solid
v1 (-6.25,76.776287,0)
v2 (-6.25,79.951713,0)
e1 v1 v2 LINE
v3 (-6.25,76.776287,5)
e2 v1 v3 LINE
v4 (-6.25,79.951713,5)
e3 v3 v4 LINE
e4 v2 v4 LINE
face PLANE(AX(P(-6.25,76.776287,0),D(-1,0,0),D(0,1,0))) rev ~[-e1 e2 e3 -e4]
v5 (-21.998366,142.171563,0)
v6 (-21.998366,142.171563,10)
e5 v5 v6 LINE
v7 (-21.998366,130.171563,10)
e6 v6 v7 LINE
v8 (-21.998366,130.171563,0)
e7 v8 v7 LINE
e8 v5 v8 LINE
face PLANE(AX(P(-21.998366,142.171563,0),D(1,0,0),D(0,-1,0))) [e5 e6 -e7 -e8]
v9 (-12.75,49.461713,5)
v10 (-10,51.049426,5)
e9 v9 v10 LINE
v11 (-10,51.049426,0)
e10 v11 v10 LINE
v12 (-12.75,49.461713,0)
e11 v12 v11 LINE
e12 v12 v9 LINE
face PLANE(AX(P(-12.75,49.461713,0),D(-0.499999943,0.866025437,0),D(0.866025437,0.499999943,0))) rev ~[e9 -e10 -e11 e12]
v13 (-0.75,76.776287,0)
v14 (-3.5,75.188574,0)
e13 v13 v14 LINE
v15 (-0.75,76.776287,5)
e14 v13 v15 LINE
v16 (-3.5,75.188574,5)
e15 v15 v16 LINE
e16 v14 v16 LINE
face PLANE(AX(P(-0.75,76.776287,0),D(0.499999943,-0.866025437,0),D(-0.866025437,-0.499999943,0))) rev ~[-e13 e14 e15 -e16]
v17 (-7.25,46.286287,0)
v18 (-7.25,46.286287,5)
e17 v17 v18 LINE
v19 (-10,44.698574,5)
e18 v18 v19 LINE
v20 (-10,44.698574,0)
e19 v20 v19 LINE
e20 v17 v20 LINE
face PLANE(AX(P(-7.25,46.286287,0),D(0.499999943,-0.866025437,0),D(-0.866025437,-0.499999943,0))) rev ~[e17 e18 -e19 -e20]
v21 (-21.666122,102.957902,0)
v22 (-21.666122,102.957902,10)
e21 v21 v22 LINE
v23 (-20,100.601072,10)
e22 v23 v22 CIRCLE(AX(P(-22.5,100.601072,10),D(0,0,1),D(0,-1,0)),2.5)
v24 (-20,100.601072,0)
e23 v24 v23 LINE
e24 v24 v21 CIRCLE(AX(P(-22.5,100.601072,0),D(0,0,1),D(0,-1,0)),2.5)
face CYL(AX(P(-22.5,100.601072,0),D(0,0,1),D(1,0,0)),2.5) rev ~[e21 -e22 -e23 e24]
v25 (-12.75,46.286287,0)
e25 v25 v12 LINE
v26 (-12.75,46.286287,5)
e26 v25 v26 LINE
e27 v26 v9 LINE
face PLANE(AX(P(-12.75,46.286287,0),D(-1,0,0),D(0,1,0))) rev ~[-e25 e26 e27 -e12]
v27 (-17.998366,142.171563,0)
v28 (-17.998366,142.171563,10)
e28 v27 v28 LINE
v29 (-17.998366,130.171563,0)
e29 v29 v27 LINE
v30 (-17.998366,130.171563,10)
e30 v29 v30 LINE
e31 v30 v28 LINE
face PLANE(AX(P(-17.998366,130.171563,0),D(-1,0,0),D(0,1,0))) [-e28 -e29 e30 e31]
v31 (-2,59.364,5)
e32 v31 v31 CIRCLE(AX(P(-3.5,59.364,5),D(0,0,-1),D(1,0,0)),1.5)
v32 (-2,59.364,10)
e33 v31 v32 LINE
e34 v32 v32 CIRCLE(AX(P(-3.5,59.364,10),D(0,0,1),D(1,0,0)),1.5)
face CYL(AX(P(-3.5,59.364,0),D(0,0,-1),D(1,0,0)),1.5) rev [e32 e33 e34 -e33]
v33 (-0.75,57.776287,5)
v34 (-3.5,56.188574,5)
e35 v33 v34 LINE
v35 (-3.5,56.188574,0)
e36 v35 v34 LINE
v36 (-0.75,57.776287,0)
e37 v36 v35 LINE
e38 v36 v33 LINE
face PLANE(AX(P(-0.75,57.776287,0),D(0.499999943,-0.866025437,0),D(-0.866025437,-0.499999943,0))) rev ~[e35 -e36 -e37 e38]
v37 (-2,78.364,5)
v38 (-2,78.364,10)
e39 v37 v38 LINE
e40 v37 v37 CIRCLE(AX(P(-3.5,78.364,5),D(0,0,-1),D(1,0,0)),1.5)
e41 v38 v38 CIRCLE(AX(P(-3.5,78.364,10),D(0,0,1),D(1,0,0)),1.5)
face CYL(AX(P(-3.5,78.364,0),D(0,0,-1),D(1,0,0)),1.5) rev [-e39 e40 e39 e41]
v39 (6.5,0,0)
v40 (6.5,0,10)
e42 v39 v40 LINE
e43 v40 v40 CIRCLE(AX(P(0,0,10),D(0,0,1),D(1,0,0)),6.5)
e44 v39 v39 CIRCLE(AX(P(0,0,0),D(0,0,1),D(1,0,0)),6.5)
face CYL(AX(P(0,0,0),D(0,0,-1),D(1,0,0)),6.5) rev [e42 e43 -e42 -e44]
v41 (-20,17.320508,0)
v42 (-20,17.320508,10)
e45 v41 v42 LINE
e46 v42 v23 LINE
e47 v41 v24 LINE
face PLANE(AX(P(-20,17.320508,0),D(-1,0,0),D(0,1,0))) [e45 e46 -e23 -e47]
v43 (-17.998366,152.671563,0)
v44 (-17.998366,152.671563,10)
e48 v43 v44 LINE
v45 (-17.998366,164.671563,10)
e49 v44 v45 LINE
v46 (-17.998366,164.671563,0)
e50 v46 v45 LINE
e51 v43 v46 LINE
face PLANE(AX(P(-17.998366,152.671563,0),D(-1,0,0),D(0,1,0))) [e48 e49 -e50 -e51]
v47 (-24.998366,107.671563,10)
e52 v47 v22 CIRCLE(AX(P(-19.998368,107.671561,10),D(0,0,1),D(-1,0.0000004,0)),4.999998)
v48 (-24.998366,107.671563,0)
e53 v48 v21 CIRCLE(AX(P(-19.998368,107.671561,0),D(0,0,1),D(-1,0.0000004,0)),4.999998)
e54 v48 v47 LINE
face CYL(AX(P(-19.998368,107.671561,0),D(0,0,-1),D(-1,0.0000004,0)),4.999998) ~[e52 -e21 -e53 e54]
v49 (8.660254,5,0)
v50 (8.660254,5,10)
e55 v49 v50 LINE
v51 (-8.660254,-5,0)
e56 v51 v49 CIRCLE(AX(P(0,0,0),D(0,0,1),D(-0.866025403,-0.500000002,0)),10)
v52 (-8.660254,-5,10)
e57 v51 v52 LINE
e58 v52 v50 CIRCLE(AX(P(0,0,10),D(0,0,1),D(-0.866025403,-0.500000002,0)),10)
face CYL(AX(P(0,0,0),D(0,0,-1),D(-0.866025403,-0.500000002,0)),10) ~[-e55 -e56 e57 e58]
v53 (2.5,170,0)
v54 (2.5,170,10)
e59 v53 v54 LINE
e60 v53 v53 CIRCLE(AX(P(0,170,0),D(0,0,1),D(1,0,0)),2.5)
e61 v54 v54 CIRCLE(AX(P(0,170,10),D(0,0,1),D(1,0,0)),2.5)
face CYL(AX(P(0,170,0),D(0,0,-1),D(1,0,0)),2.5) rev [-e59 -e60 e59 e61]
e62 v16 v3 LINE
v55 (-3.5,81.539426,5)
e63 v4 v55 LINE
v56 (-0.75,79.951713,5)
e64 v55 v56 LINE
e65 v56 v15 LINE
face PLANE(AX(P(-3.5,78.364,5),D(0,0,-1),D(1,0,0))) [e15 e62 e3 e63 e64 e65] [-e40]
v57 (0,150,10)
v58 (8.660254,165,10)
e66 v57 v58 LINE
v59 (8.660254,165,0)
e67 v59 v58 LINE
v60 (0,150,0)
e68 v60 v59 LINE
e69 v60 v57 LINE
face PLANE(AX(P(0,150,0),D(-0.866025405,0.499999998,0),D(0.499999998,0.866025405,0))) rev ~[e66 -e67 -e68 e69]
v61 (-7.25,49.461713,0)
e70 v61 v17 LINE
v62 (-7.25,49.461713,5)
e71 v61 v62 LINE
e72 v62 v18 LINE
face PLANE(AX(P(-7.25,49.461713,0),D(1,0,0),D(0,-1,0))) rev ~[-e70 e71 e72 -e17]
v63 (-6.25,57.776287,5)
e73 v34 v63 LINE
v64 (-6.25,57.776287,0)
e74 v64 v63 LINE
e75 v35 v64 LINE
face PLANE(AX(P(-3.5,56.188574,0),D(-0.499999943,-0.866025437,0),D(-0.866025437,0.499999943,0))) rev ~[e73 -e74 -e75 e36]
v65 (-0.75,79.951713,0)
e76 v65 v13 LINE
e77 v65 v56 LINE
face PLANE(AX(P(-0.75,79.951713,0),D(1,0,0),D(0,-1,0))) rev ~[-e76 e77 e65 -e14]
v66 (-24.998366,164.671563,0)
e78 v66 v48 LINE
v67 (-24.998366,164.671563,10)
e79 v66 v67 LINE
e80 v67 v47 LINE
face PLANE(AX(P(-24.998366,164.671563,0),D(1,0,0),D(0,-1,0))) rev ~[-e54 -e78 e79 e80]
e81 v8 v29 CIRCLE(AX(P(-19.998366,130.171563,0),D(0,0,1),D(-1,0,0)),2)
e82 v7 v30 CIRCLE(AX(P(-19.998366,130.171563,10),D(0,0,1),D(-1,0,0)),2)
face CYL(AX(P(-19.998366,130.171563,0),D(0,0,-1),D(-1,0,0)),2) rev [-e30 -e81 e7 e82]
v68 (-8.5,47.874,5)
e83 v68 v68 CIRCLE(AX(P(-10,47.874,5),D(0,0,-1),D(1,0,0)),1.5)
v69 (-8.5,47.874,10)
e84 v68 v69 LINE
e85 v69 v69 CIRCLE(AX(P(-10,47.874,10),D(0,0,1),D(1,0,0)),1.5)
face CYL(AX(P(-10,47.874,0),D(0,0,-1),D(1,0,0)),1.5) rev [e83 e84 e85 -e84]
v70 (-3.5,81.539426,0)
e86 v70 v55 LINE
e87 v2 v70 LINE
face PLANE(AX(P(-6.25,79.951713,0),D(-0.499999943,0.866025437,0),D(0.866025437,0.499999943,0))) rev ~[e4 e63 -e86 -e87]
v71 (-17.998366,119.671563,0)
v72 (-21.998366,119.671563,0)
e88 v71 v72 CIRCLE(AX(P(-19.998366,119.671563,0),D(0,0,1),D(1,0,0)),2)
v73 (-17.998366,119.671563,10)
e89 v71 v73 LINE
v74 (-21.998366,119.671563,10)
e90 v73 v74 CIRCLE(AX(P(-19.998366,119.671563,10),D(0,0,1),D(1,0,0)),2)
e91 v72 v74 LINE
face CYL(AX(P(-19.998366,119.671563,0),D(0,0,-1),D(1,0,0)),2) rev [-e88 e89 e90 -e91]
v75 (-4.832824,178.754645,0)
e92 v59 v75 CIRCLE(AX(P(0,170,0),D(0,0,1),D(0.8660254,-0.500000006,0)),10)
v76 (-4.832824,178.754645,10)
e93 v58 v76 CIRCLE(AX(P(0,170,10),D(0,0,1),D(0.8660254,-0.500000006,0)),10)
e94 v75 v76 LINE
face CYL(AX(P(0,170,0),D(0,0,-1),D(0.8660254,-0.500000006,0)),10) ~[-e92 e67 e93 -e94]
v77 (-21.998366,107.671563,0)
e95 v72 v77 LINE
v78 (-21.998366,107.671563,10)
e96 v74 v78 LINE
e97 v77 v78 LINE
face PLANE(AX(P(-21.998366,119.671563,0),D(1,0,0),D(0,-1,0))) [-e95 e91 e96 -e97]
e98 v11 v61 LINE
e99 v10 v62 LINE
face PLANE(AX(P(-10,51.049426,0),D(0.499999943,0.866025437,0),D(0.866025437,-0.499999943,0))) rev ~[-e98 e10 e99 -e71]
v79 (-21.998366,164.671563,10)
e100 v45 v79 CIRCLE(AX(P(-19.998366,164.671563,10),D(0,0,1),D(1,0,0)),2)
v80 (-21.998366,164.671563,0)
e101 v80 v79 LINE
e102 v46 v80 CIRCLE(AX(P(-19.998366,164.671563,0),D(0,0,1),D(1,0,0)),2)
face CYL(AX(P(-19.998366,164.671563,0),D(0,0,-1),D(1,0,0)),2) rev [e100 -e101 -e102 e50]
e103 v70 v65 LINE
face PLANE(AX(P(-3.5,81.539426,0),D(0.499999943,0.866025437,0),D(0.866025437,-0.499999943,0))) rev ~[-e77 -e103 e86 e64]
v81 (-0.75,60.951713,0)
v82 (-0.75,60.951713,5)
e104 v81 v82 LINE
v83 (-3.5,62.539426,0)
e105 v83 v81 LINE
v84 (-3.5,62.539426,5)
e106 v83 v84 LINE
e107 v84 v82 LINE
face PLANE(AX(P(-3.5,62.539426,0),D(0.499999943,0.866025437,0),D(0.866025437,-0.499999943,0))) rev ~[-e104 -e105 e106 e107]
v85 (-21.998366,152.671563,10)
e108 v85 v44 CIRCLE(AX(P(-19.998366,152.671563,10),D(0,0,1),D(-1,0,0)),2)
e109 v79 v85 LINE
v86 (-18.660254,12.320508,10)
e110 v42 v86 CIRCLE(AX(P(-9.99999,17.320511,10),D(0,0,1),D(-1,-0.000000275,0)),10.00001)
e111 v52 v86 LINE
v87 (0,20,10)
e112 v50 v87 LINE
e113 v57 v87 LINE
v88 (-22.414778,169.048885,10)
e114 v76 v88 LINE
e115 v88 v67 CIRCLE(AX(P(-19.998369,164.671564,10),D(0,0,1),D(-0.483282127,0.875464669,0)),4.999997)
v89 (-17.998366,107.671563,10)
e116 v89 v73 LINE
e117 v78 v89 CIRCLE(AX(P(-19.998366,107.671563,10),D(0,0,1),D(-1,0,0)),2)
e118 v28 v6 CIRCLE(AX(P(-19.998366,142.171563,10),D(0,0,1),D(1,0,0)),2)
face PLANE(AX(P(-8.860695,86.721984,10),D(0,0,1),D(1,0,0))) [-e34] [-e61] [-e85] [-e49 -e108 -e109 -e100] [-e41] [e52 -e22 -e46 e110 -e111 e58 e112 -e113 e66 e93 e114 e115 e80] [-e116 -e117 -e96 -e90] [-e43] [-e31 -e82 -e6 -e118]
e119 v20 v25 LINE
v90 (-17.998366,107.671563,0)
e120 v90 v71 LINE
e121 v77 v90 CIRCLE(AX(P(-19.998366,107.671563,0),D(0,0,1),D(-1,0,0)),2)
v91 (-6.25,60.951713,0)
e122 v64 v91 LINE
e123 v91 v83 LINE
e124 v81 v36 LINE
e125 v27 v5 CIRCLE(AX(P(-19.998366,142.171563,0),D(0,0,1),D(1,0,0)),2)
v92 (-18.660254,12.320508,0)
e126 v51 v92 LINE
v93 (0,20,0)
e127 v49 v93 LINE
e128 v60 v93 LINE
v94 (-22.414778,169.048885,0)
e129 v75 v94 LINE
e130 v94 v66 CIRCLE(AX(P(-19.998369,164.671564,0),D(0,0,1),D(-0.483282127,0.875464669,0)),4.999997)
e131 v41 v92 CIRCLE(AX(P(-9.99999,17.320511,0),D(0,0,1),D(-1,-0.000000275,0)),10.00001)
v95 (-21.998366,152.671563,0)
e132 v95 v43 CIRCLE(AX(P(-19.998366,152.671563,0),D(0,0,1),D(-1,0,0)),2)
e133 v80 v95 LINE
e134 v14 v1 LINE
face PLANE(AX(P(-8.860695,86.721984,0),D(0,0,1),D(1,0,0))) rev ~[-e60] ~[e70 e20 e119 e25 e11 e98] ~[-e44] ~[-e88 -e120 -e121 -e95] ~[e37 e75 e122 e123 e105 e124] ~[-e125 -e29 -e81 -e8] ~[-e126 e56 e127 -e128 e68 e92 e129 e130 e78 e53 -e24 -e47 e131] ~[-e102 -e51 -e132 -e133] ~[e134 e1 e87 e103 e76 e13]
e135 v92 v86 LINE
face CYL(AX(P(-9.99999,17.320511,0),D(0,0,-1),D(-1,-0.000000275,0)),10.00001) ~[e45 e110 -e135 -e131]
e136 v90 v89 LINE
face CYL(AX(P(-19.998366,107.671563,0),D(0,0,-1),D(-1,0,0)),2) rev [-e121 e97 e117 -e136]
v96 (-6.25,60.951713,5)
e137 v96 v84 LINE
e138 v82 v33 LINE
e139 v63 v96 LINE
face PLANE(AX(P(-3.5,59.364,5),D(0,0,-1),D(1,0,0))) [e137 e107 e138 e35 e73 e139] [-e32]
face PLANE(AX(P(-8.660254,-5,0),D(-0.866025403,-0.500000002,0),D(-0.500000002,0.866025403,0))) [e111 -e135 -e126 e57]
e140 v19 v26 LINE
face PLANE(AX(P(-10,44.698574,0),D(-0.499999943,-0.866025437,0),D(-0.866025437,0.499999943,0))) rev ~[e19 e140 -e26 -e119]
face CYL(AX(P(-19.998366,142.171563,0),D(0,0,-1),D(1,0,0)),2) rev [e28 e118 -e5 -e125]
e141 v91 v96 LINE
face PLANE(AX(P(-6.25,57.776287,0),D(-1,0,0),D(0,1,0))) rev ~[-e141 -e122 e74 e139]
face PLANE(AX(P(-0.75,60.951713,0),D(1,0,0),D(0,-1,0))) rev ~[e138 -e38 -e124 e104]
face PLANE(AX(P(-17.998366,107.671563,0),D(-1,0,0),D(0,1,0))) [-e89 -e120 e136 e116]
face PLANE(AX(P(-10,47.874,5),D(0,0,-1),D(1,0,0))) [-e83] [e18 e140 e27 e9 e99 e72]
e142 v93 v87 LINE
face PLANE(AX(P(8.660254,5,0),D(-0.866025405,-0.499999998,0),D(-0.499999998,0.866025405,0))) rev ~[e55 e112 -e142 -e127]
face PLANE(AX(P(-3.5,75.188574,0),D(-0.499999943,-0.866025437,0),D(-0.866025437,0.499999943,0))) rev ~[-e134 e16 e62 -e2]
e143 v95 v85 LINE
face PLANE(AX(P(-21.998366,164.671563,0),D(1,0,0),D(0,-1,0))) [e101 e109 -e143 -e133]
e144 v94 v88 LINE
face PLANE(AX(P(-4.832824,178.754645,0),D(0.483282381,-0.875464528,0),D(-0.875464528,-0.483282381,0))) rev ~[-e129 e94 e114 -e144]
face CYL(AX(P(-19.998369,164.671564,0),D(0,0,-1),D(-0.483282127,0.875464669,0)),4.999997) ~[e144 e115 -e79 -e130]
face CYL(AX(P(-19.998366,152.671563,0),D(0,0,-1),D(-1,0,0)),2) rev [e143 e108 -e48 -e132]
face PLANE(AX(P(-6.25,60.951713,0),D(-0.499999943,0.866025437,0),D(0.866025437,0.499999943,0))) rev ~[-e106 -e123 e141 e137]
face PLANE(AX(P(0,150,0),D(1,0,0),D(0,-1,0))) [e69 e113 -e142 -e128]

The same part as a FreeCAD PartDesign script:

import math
import FreeCAD as App
import Part
import Sketcher
from FreeCAD import Vector
Q = App.Units.Quantity


def edges_at(feature, points):
    """Names of the edges that pass closest to the given points."""
    edges = feature.Shape.Edges
    near = lambda p: min(range(len(edges)), key=lambda i: edges[i].distToShape(Part.Vertex(*p))[0])
    return sorted({f"Edge{near(p) + 1}" for p in points})


def add_polygon(sketch, points):
    """Adds a closed chain of lines whose ends are joined by coincident constraints."""
    first, n = sketch.GeometryCount, len(points)
    for a, b in zip(points, points[1:] + points[:1]):
        sketch.addGeometry(Part.LineSegment(App.Vector(*a, 0), App.Vector(*b, 0)), False)
    for i in range(n):
        sketch.addConstraint(Sketcher.Constraint("Coincident", first + i, 2, first + (i + 1) % n, 1))

doc = App.newDocument("Part")
body = doc.addObject("PartDesign::Body", "Body")

# Sketch on XY plane
sketch1 = body.newObject("Sketcher::SketchObject", "Sketch")
sketch1.AttachmentSupport = (doc.getObject("XY_Plane"), [""])
sketch1.MapMode = "FlatFace"
sketch1.addGeometry([
    Part.ArcOfCircle(Part.Circle(Vector(0, 0, 0), Vector(0, 0, 1), 10), math.radians(-150), math.radians(30)),  # 0
    Part.LineSegment(Vector(8.7, 5, 0), Vector(0, 20, 0)),  # 1
    Part.LineSegment(Vector(0, 20, 0), Vector(0, 150, 0)),  # 2
    Part.LineSegment(Vector(0, 150, 0), Vector(8.7, 165, 0)),  # 3
    Part.ArcOfCircle(Part.Circle(Vector(0, 170, 0), Vector(0, 0, 1), 10), math.radians(-30), math.radians(119)),  # 4
    Part.LineSegment(Vector(-4.8, 178.8, 0), Vector(-22.4, 169, 0)),  # 5
    Part.ArcOfCircle(Part.Circle(Vector(-20, 164.7, 0), Vector(0, 0, 1), 5), math.radians(119), math.radians(180)),  # 6
    Part.LineSegment(Vector(-25, 164.7, 0), Vector(-25, 107.7, 0)),  # 7
    Part.ArcOfCircle(Part.Circle(Vector(-20, 107.7, 0), Vector(0, 0, 1), 5), math.radians(180), math.radians(270)),  # 8
    Part.LineSegment(Vector(-20, 102.7, 0), Vector(-20, 17.3, 0)),  # 9
    Part.ArcOfCircle(Part.Circle(Vector(-10, 17.3, 0), Vector(0, 0, 1), 10), math.radians(-180), math.radians(-150)),  # 10
    Part.LineSegment(Vector(-18.7, 12.3, 0), Vector(-8.7, -5, 0)),  # 11
    Part.Circle(Vector(-10, 47.9, 0), Vector(0, 0, 1), 1.5),  # 12
    Part.Circle(Vector(0, 0, 0), Vector(0, 0, 1), 6.5),  # 13
    Part.Circle(Vector(-3.5, 59.4, 0), Vector(0, 0, 1), 1.5),  # 14
    Part.Circle(Vector(-3.5, 78.4, 0), Vector(0, 0, 1), 1.5),  # 15
    Part.ArcOfCircle(Part.Circle(Vector(-20, 107.7, 0), Vector(0, 0, 1), 2), math.radians(180), math.radians(360)),  # 16
    Part.LineSegment(Vector(-22, 107.7, 0), Vector(-22, 119.7, 0)),  # 17
    Part.ArcOfCircle(Part.Circle(Vector(-20, 119.7, 0), Vector(0, 0, 1), 2), math.radians(0), math.radians(180)),  # 18
    Part.LineSegment(Vector(-18, 119.7, 0), Vector(-18, 107.7, 0)),  # 19
    Part.ArcOfCircle(Part.Circle(Vector(-20, 142.2, 0), Vector(0, 0, 1), 2), math.radians(0), math.radians(180)),  # 20
    Part.LineSegment(Vector(-18, 142.2, 0), Vector(-18, 130.2, 0)),  # 21
    Part.ArcOfCircle(Part.Circle(Vector(-20, 130.2, 0), Vector(0, 0, 1), 2), math.radians(180), math.radians(360)),  # 22
    Part.LineSegment(Vector(-22, 130.2, 0), Vector(-22, 142.2, 0)),  # 23
    Part.ArcOfCircle(Part.Circle(Vector(-20, 164.7, 0), Vector(0, 0, 1), 2), math.radians(0), math.radians(180)),  # 24
    Part.LineSegment(Vector(-18, 164.7, 0), Vector(-18, 152.7, 0)),  # 25
    Part.ArcOfCircle(Part.Circle(Vector(-20, 152.7, 0), Vector(0, 0, 1), 2), math.radians(180), math.radians(360)),  # 26
    Part.LineSegment(Vector(-22, 152.7, 0), Vector(-22, 164.7, 0)),  # 27
    Part.Circle(Vector(0, 170, 0), Vector(0, 0, 1), 2.5),  # 28
], False)
sketch1.addConstraint([
    Sketcher.Constraint("Tangent", 0, 2, 1, 1),
    Sketcher.Constraint("Coincident", 1, 2, 2, 1),
    Sketcher.Constraint("Coincident", 2, 2, 3, 1),
    Sketcher.Constraint("Tangent", 3, 2, 4, 1),
    Sketcher.Constraint("Tangent", 4, 2, 5, 1),
    Sketcher.Constraint("Tangent", 5, 2, 6, 1),
    Sketcher.Constraint("Tangent", 6, 2, 7, 1),
    Sketcher.Constraint("Tangent", 7, 2, 8, 1),
    Sketcher.Constraint("Coincident", 8, 2, 9, 1),
    Sketcher.Constraint("Tangent", 9, 2, 10, 1),
    Sketcher.Constraint("Tangent", 10, 2, 11, 1),
    Sketcher.Constraint("Tangent", 11, 2, 0, 1),
    Sketcher.Constraint("Tangent", 16, 1, 17, 1),
    Sketcher.Constraint("Tangent", 17, 2, 18, 2),
    Sketcher.Constraint("Tangent", 18, 1, 19, 1),
    Sketcher.Constraint("Tangent", 19, 2, 16, 2),
    Sketcher.Constraint("Tangent", 20, 1, 21, 1),
    Sketcher.Constraint("Tangent", 21, 2, 22, 2),
    Sketcher.Constraint("Tangent", 22, 1, 23, 1),
    Sketcher.Constraint("Tangent", 23, 2, 20, 2),
    Sketcher.Constraint("Tangent", 24, 1, 25, 1),
    Sketcher.Constraint("Tangent", 25, 2, 26, 2),
    Sketcher.Constraint("Tangent", 26, 1, 27, 1),
    Sketcher.Constraint("Tangent", 27, 2, 24, 2),
    Sketcher.Constraint("Vertical", 2),
    Sketcher.Constraint("Vertical", 7),
    Sketcher.Constraint("Vertical", 9),
    Sketcher.Constraint("Vertical", 17),
    Sketcher.Constraint("Vertical", 19),
    Sketcher.Constraint("Vertical", 21),
    Sketcher.Constraint("Vertical", 23),
    Sketcher.Constraint("Vertical", 25),
    Sketcher.Constraint("Vertical", 27),
    Sketcher.Constraint("Coincident", 0, 3, -1, 1),
    Sketcher.Constraint("Coincident", 13, 3, -1, 1),
    Sketcher.Constraint("Coincident", 16, 3, 8, 3),
    Sketcher.Constraint("Coincident", 24, 3, 6, 3),
    Sketcher.Constraint("Coincident", 28, 3, 4, 3),
    Sketcher.Constraint("Equal", 0, 4),
    Sketcher.Constraint("Equal", 6, 8),
    Sketcher.Constraint("Equal", 12, 14),
    Sketcher.Constraint("Equal", 14, 15),
    Sketcher.Constraint("Equal", 18, 20),
    Sketcher.Constraint("Equal", 22, 24),
    Sketcher.Constraint("PointOnObject", 4, 3, -2),
    Sketcher.Constraint("PointOnObject", 1, 2, -2),
    Sketcher.Constraint("Parallel", 1, 11),
    Sketcher.Constraint("Vertical", 14, 3, 15, 3),
    Sketcher.Constraint("Vertical", 18, 3, 20, 3),
    Sketcher.Constraint("Vertical", 0, 2, 3, 2),
    Sketcher.Constraint("Equal", 19, 21),
    Sketcher.Constraint("Equal", 23, 25),
    Sketcher.Constraint("Diameter", 12, 3.0),
    Sketcher.Constraint("Diameter", 13, 13.0),
    Sketcher.Constraint("Diameter", 28, 5.0),
    Sketcher.Constraint("Radius", 0, 10.0),
    Sketcher.Constraint("Radius", 8, 4.999998),
    Sketcher.Constraint("Radius", 16, 2.0),
    Sketcher.Constraint("DistanceY", 2, 1, 2, 2, 130.0),
    Sketcher.Constraint("DistanceY", 7, 2, 7, 1, 57.0),
    Sketcher.Constraint("DistanceY", 17, 1, 17, 2, 12.0),
    Sketcher.Constraint("Angle", 1, Q("120 deg")),
    Sketcher.Constraint("Distance", 11, 20.0),
    Sketcher.Constraint("DistanceX", 12, 3, -1, 1, 10.0),
    Sketcher.Constraint("DistanceX", 8, 2, -1, 1, 20.0),
    Sketcher.Constraint("Angle", 5, Q("-151.1 deg")),
    Sketcher.Constraint("DistanceY", 14, 3, 15, 3, 19.0),
    Sketcher.Constraint("DistanceX", 14, 3, -1, 1, 3.5),
    Sketcher.Constraint("DistanceY", 18, 3, 20, 3, 22.5),
    Sketcher.Constraint("DistanceY", 12, 3, 14, 3, 11.49),
    Sketcher.Constraint("Distance", 5, 20.083),
    Sketcher.Constraint("DistanceY", -1, 1, 12, 3, 47.874),
])
pad1 = body.newObject("PartDesign::Pad", "Pad")
pad1.Profile = sketch1
pad1.Length = 10
doc.recompute()

fillet = body.newObject("PartDesign::Fillet", "Fillet")
fillet.Base = (pad1, edges_at(pad1, [(-20, 102.672, 5)]))
fillet.Radius = 2.5

# Sketch on XY plane
sketch2 = body.newObject("Sketcher::SketchObject", "Sketch001")
sketch2.AttachmentSupport = (doc.getObject("XY_Plane"), [""])
sketch2.MapMode = "FlatFace"
add_polygon(sketch2, [(-3.5, 81.5), (-0.8, 80), (-0.8, 76.8), (-3.5, 75.2), (-6.2, 76.8), (-6.2, 80)])  # lines 0-5
add_polygon(sketch2, [(-3.5, 62.5), (-0.8, 61), (-0.8, 57.8), (-3.5, 56.2), (-6.2, 57.8), (-6.2, 61)])  # lines 6-11
add_polygon(sketch2, [(-10, 51), (-7.2, 49.5), (-7.2, 46.3), (-10, 44.7), (-12.8, 46.3), (-12.8, 49.5)])  # lines 12-17
sketch2.addConstraint([
    Sketcher.Constraint("Vertical", 1),
    Sketcher.Constraint("Vertical", 4),
    Sketcher.Constraint("Vertical", 7),
    Sketcher.Constraint("Vertical", 10),
    Sketcher.Constraint("Vertical", 13),
    Sketcher.Constraint("Vertical", 16),
    Sketcher.Constraint("Parallel", 0, 3),
    Sketcher.Constraint("Parallel", 2, 5),
    Sketcher.Constraint("Parallel", 3, 6),
    Sketcher.Constraint("Parallel", 5, 8),
    Sketcher.Constraint("Parallel", 6, 9),
    Sketcher.Constraint("Parallel", 8, 11),
    Sketcher.Constraint("Parallel", 9, 12),
    Sketcher.Constraint("Parallel", 11, 14),
    Sketcher.Constraint("Parallel", 12, 15),
    Sketcher.Constraint("Parallel", 14, 17),
    Sketcher.Constraint("Horizontal", 1, 2, 3, 2),
    Sketcher.Constraint("Horizontal", 0, 2, 4, 2),
    Sketcher.Constraint("Horizontal", 7, 2, 9, 2),
    Sketcher.Constraint("Horizontal", 6, 2, 10, 2),
    Sketcher.Constraint("Horizontal", 13, 2, 15, 2),
    Sketcher.Constraint("Horizontal", 12, 2, 16, 2),
    Sketcher.Constraint("Vertical", 2, 2, 5, 2),
    Sketcher.Constraint("Vertical", 1, 2, 6, 2),
    Sketcher.Constraint("Vertical", 5, 2, 8, 2),
    Sketcher.Constraint("Equal", 4, 7),
    Sketcher.Constraint("Equal", 10, 13),
    Sketcher.Constraint("Equal", 11, 12),
    Sketcher.Constraint("Angle", 0, Q("-29.999996 deg")),
    Sketcher.Constraint("DistanceX", 14, 2, -1, 1, 10.0),
    Sketcher.Constraint("DistanceY", 6, 2, 0, 2, 19.0),
    Sketcher.Constraint("DistanceX", 12, 2, 9, 2, 1.0),
    Sketcher.Constraint("DistanceX", 2, 2, -1, 1, 3.5),
    Sketcher.Constraint("DistanceY", 12, 2, 10, 2, 11.49),
    Sketcher.Constraint("DistanceY", 1, 2, 1, 1, 3.175426),
    Sketcher.Constraint("DistanceY", -1, 1, 0, 2, 79.951713),
])
pocket1 = body.newObject("PartDesign::Pocket", "Pocket")
pocket1.Profile = sketch2
pocket1.Length = 5
pocket1.Reversed = True

doc.recompute()
